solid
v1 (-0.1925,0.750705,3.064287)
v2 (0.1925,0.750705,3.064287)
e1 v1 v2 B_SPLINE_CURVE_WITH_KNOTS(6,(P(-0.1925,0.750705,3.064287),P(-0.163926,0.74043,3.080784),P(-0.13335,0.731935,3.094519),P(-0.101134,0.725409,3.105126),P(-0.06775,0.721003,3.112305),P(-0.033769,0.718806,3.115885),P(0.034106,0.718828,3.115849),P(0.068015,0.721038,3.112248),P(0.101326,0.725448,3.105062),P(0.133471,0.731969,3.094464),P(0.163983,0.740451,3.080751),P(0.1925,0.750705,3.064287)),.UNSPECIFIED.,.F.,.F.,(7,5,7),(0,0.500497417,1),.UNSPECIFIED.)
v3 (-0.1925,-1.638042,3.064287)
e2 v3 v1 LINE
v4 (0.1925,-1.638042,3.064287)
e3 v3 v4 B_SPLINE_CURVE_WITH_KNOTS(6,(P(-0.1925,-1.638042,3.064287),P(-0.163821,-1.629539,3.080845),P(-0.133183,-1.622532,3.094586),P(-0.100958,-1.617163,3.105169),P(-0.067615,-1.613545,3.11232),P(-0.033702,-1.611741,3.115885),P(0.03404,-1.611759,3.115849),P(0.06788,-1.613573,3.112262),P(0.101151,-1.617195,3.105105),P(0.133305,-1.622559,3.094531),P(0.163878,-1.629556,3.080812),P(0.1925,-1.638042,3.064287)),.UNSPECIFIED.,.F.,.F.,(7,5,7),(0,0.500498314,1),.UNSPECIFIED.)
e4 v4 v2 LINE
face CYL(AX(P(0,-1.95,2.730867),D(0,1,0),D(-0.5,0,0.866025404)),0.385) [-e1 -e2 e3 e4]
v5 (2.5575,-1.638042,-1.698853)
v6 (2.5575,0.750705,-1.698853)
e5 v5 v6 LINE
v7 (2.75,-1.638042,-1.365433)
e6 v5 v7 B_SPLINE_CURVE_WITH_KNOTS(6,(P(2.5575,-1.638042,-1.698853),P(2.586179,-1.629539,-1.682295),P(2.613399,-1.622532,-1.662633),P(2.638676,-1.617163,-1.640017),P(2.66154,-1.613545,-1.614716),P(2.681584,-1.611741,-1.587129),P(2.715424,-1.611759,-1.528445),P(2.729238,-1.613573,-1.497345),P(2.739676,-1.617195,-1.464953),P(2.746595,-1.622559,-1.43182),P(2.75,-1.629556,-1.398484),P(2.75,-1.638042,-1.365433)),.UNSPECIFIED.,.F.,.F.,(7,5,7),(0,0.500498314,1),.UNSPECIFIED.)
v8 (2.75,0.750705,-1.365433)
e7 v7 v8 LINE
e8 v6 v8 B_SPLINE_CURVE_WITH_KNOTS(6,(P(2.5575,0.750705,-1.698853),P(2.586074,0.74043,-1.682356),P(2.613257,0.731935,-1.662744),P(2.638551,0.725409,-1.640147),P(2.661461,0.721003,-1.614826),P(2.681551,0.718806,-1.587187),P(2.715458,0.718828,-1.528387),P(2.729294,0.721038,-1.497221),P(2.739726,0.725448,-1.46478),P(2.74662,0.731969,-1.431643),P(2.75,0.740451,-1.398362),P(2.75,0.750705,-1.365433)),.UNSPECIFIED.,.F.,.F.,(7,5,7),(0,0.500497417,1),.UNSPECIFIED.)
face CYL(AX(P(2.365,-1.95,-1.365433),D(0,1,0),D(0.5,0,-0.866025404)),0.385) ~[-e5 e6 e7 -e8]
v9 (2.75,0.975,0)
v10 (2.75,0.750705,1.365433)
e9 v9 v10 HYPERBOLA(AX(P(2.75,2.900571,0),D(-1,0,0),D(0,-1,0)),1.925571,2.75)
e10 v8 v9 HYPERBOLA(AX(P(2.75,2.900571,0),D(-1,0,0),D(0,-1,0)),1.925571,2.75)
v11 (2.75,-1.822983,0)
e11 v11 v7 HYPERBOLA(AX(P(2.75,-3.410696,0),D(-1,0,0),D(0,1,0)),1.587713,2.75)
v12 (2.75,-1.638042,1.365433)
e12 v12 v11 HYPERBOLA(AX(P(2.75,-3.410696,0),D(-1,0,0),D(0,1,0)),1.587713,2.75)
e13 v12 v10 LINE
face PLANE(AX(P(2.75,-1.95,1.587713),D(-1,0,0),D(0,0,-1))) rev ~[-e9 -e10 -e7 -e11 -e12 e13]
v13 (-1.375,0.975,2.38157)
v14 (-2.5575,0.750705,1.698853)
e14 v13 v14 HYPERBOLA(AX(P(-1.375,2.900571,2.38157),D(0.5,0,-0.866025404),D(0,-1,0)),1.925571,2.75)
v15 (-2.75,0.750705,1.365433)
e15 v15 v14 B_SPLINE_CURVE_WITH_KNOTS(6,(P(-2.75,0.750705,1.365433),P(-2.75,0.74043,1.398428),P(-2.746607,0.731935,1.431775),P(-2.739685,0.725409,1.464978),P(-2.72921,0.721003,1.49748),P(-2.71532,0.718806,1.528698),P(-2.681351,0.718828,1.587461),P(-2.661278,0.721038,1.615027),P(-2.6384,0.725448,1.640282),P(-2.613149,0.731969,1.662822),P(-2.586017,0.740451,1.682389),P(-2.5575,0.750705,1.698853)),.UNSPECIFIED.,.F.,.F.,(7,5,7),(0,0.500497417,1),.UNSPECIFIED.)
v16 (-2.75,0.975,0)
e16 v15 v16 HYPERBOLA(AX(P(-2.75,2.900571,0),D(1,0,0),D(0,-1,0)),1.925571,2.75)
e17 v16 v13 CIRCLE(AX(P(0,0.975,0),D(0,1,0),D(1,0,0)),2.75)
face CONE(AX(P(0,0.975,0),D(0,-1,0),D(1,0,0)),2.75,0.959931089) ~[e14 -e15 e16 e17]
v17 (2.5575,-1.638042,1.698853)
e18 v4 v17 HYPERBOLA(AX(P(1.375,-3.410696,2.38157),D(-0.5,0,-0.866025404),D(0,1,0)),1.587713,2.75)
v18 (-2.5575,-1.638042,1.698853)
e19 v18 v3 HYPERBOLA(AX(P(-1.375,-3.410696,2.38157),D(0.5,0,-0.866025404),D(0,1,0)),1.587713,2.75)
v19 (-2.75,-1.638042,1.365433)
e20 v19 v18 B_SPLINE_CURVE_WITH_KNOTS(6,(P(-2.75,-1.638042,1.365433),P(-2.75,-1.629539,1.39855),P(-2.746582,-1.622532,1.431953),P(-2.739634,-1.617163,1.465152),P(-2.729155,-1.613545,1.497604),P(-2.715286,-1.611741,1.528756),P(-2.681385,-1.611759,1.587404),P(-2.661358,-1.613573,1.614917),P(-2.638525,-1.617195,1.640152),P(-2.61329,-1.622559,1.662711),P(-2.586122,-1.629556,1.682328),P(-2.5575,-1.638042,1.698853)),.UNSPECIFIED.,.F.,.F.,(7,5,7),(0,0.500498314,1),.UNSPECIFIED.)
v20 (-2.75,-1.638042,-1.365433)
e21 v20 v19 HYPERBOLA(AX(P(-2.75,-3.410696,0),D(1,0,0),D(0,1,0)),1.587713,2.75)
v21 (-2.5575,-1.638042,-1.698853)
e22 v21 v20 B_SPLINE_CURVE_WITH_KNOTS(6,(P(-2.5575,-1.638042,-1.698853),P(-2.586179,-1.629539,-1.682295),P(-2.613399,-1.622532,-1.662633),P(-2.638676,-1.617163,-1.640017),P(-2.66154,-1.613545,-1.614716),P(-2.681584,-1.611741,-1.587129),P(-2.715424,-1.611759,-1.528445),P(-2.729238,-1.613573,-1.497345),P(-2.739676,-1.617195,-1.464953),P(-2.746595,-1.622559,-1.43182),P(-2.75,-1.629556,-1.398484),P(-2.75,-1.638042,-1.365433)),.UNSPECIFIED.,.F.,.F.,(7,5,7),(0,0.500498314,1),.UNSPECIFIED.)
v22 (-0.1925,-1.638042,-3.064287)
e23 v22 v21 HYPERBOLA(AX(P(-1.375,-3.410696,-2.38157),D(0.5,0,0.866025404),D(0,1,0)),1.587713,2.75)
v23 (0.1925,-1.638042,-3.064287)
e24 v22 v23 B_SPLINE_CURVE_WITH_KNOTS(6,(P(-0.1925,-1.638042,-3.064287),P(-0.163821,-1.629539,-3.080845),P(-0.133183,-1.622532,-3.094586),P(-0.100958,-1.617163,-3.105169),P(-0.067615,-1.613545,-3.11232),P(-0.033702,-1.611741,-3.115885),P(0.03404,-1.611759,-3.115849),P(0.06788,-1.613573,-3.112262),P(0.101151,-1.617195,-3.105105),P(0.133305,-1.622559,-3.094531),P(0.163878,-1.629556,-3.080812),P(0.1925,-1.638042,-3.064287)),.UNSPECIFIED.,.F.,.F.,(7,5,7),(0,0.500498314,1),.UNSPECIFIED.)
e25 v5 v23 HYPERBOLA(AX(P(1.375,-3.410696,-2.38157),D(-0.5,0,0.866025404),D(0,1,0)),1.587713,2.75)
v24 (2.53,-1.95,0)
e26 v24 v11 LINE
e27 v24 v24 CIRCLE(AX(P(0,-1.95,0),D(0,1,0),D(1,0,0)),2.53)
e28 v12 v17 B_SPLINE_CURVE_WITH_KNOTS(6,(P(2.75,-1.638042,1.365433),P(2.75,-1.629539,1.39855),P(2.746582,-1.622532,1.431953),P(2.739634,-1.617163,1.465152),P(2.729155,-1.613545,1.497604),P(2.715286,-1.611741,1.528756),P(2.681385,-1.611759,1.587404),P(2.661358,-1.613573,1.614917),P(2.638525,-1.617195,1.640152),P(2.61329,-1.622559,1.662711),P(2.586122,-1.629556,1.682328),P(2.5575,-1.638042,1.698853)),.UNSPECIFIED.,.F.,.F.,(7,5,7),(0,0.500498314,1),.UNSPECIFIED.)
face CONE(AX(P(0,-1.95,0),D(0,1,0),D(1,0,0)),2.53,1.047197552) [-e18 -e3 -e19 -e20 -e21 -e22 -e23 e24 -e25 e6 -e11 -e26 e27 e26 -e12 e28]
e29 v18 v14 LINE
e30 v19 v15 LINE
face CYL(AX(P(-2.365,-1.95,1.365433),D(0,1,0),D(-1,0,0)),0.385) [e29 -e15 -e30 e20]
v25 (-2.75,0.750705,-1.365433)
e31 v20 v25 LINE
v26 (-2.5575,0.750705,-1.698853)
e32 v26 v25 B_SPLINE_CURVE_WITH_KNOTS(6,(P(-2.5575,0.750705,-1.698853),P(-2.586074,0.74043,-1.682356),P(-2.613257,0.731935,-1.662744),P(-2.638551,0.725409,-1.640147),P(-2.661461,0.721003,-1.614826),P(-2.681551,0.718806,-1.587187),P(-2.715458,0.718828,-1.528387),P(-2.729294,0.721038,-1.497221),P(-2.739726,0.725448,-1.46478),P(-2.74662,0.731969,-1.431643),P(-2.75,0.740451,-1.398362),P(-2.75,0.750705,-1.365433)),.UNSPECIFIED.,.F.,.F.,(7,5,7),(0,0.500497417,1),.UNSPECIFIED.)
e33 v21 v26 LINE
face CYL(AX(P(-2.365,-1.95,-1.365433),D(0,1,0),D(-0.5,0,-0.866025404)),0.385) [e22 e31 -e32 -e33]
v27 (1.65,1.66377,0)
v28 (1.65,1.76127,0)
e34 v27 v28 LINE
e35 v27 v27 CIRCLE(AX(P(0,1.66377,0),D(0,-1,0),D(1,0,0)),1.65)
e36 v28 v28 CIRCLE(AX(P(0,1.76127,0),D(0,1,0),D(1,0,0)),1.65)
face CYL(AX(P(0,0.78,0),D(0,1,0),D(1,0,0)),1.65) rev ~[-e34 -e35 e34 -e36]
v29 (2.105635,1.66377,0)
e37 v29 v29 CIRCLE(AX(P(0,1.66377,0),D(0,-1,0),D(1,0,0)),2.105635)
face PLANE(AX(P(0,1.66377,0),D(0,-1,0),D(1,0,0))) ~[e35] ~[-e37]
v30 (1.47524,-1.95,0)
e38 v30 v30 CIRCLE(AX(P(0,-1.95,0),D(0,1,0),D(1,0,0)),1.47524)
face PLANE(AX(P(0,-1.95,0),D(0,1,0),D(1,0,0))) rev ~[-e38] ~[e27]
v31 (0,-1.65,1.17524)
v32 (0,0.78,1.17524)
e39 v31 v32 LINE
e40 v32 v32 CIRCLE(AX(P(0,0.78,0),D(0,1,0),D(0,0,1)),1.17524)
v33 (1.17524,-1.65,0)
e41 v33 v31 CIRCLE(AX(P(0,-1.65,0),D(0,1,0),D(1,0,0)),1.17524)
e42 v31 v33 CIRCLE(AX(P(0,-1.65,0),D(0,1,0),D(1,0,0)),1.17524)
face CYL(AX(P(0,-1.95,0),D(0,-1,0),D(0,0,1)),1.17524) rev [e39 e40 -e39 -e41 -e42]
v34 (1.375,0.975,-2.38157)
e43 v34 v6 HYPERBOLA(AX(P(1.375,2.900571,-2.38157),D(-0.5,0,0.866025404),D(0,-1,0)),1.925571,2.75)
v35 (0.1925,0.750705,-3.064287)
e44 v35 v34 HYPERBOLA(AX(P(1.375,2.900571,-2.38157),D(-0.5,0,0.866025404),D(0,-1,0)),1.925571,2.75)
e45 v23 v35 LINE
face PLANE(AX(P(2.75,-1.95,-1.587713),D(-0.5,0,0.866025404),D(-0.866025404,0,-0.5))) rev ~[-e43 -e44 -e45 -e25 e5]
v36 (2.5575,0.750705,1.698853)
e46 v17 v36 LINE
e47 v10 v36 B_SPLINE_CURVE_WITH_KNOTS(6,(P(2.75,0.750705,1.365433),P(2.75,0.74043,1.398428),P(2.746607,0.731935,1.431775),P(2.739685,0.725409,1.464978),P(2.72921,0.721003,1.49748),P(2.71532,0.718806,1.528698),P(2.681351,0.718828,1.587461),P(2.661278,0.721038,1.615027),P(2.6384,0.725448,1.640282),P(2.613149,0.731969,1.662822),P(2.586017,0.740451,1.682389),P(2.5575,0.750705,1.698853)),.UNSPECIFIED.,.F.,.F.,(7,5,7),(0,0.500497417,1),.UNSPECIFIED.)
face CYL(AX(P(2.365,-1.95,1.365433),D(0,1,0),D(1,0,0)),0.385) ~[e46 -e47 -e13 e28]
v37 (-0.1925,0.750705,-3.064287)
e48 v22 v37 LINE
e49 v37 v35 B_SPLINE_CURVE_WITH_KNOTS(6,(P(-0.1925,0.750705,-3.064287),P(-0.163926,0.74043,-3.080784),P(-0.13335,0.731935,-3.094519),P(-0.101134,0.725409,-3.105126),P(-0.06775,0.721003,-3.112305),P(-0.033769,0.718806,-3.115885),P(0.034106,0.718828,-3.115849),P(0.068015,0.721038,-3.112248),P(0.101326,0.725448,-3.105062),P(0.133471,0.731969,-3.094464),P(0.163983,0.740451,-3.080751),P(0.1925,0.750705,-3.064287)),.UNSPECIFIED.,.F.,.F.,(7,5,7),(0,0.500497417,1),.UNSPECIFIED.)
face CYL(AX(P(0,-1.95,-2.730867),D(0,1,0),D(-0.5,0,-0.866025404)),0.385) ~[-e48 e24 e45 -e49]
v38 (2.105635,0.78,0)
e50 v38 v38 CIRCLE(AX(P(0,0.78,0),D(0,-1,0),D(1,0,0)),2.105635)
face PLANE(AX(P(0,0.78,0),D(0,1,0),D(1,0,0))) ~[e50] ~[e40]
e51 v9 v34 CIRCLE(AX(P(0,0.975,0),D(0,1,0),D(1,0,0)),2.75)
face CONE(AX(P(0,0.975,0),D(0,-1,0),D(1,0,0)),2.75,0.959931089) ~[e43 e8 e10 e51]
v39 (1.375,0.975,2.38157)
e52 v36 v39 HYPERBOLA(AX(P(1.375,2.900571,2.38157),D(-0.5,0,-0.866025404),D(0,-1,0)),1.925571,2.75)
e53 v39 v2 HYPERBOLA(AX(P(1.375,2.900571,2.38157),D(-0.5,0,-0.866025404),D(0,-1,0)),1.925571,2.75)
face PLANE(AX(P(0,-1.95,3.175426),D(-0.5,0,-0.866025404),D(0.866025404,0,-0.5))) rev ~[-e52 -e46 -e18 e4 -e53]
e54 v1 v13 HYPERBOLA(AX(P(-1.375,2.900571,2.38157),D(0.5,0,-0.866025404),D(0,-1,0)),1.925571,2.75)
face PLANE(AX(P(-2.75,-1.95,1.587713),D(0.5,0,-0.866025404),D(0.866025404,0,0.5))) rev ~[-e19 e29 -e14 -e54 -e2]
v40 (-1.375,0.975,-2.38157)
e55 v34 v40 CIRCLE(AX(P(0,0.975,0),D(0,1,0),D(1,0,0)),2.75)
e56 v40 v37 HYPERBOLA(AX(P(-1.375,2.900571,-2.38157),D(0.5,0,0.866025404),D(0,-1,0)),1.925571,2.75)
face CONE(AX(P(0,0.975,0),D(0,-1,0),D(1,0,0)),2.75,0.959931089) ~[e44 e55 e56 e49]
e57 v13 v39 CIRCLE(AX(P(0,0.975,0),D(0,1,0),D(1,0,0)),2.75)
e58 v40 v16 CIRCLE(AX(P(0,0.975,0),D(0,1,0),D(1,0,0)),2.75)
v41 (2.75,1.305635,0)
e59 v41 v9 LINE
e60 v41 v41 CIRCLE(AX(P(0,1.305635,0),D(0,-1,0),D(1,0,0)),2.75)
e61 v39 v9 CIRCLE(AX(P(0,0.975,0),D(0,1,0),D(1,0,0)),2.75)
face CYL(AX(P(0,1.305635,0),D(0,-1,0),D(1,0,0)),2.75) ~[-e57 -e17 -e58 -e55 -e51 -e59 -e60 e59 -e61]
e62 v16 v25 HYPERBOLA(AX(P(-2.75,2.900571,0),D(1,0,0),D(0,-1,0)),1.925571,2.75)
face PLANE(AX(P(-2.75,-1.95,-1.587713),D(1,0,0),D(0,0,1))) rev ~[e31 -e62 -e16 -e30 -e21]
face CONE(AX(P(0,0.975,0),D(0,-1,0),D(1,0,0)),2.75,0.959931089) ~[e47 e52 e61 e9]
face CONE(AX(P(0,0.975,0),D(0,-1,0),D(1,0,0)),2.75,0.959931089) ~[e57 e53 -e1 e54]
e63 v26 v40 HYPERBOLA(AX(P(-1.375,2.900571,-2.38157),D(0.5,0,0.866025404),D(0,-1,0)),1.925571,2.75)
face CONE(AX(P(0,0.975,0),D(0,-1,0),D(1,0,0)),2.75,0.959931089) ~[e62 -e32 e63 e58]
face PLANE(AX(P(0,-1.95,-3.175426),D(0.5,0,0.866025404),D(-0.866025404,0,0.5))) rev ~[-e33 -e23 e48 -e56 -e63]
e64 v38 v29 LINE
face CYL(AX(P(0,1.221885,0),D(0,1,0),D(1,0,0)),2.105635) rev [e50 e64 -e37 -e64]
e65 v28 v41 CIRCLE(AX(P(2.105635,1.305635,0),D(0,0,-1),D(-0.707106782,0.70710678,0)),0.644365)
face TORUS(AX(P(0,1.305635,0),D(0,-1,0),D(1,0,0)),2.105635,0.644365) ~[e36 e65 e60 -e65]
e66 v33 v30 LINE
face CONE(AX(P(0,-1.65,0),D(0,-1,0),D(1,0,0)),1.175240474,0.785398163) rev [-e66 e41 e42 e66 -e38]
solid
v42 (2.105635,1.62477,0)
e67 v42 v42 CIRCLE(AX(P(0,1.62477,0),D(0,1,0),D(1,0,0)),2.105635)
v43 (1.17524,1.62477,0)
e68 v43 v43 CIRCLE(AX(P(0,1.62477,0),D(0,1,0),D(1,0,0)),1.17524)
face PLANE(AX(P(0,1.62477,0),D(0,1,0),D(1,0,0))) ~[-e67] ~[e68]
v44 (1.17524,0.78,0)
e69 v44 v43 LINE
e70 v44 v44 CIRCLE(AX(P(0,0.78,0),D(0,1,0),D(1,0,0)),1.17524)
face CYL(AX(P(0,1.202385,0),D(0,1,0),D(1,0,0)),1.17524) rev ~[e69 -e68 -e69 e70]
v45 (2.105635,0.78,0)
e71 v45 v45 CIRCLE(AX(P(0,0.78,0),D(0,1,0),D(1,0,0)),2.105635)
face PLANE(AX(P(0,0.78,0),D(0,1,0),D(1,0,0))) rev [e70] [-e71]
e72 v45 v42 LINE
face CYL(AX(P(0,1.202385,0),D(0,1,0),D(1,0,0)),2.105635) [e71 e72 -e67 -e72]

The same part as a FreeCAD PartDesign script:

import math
import FreeCAD as App
import Part
import Sketcher
from FreeCAD import Vector
Q = App.Units.Quantity


def edges_at(feature, points):
    """Names of the edges that pass closest to the given points."""
    edges = feature.Shape.Edges
    near = lambda p: min(range(len(edges)), key=lambda i: edges[i].distToShape(Part.Vertex(*p))[0])
    return sorted({f"Edge{near(p) + 1}" for p in points})

doc = App.newDocument("Part")
body = doc.addObject("PartDesign::Body", "Body")

sketch1 = body.newObject("Sketcher::SketchObject", "Sketch")
sketch1.AttachmentSupport = (doc.getObject("XZ_Plane"), [""])
sketch1.MapMode = "FlatFace"
sketch1.addGeometry([
    Part.LineSegment(Vector(0, -3.2, 0), Vector(-2.8, -1.6, 0)),
    Part.LineSegment(Vector(-2.8, -1.6, 0), Vector(-2.8, 1.6, 0)),
    Part.LineSegment(Vector(-2.8, 1.6, 0), Vector(0, 3.2, 0)),
    Part.LineSegment(Vector(0, 3.2, 0), Vector(2.8, 1.6, 0)),
    Part.LineSegment(Vector(2.8, 1.6, 0), Vector(2.8, -1.6, 0)),
    Part.LineSegment(Vector(2.8, -1.6, 0), Vector(0, -3.2, 0)),
    Part.Circle(Vector(0, 0, 0), Vector(0, 0, 1), 1.2),
], False)
sketch1.addConstraint([
    Sketcher.Constraint("Coincident", 0, 2, 1, 1),
    Sketcher.Constraint("Coincident", 1, 2, 2, 1),
    Sketcher.Constraint("Coincident", 2, 2, 3, 1),
    Sketcher.Constraint("Coincident", 3, 2, 4, 1),
    Sketcher.Constraint("Coincident", 4, 2, 5, 1),
    Sketcher.Constraint("Coincident", 5, 2, 0, 1),
    Sketcher.Constraint("Vertical", 1),
    Sketcher.Constraint("Vertical", 4),
    Sketcher.Constraint("Coincident", 6, 3, -1, 1),
    Sketcher.Constraint("Symmetric", 0, 2, 3, 2, -1, 1),
    Sketcher.Constraint("Symmetric", 2, 2, 5, 2, -1, 1),
    Sketcher.Constraint("PointOnObject", 2, 2, -2),
    Sketcher.Constraint("Parallel", 2, 5),
    Sketcher.Constraint("Horizontal", 1, 2, 3, 2),
    Sketcher.Constraint("Angle", 0, Q("150 deg")),
    Sketcher.Constraint("DistanceX", 1, 2, 3, 2, Q("5.5 mm")),
    Sketcher.Constraint("Diameter", 6, Q("2.350481 mm")),
    Sketcher.Constraint("DistanceY", 1, 1, 1, 2, Q("3.175426 mm")),
])
pad1 = body.newObject("PartDesign::Pad", "Pad")
pad1.Profile = sketch1
pad1.Type = "TwoLengths"
pad1.Length = 1.95
pad1.Length2 = 1.95
pad1.Reversed = True
doc.recompute()

fillet = body.newObject("PartDesign::Fillet", "Fillet")
fillet.Base = (pad1, edges_at(pad1, [
    (2.75, 0, -1.588),
    (2.75, 0, 1.588),
    (0, 0, 3.175),
    (-2.75, 0, 1.588),
    (-2.75, 0, -1.588),
    (0, 0, -3.175),
]))
fillet.Radius = 0.385

sketch2 = body.newObject("Sketcher::SketchObject", "Sketch001")
sketch2.AttachmentSupport = (doc.getObject("YZ_Plane"), [""])
sketch2.MapMode = "FlatFace"
sketch2.addGeometry([
    Part.LineSegment(Vector(2.95, -3.18, 0), Vector(2.95, -1.18, 0)),
    Part.LineSegment(Vector(2.95, -1.18, 0), Vector(0.78, -1.18, 0)),
    Part.LineSegment(Vector(0.78, -1.18, 0), Vector(0.78, -1.65, 0)),
    Part.LineSegment(Vector(0.78, -1.65, 0), Vector(1.76, -1.65, 0)),
    Part.ArcOfCircle(Part.Circle(Vector(1.31, -2.11, 0), Vector(0, 0, 1), 0.64), math.radians(-90), math.radians(45)),
    Part.LineSegment(Vector(1.31, -2.75, 0), Vector(0.97, -2.75, 0)),
    Part.LineSegment(Vector(0.97, -2.75, 0), Vector(0.68, -3.18, 0)),
    Part.LineSegment(Vector(0.68, -3.18, 0), Vector(2.95, -3.18, 0)),
    Part.LineSegment(Vector(-1.58, -3.18, 0), Vector(-1.95, -2.53, 0)),
    Part.LineSegment(Vector(-1.95, -2.53, 0), Vector(-1.95, -3.18, 0)),
    Part.LineSegment(Vector(-1.95, -3.18, 0), Vector(-1.58, -3.18, 0)),
    Part.LineSegment(Vector(-1.65, -1.18, 0), Vector(-1.95, -1.18, 0)),
    Part.LineSegment(Vector(-1.95, -1.18, 0), Vector(-1.95, -1.48, 0)),
    Part.LineSegment(Vector(-1.95, -1.48, 0), Vector(-1.65, -1.18, 0)),
], False)
sketch2.addConstraint([
    Sketcher.Constraint("Coincident", 0, 2, 1, 1),
    Sketcher.Constraint("Coincident", 1, 2, 2, 1),
    Sketcher.Constraint("Coincident", 2, 2, 3, 1),
    Sketcher.Constraint("Coincident", 3, 2, 4, 2),
    Sketcher.Constraint("Tangent", 4, 1, 5, 1),
    Sketcher.Constraint("Coincident", 5, 2, 6, 1),
    Sketcher.Constraint("Coincident", 6, 2, 7, 1),
    Sketcher.Constraint("Coincident", 7, 2, 0, 1),
    Sketcher.Constraint("Coincident", 8, 2, 9, 1),
    Sketcher.Constraint("Coincident", 9, 2, 10, 1),
    Sketcher.Constraint("Coincident", 10, 2, 8, 1),
    Sketcher.Constraint("Coincident", 11, 2, 12, 1),
    Sketcher.Constraint("Coincident", 12, 2, 13, 1),
    Sketcher.Constraint("Coincident", 13, 2, 11, 1),
    Sketcher.Constraint("Vertical", 0),
    Sketcher.Constraint("Horizontal", 1),
    Sketcher.Constraint("Vertical", 2),
    Sketcher.Constraint("Horizontal", 3),
    Sketcher.Constraint("Horizontal", 5),
    Sketcher.Constraint("Horizontal", 7),
    Sketcher.Constraint("Vertical", 9),
    Sketcher.Constraint("Horizontal", 10),
    Sketcher.Constraint("Horizontal", 11),
    Sketcher.Constraint("Vertical", 12),
    Sketcher.Constraint("Horizontal", 7, 2, 9, 2),
    Sketcher.Constraint("Horizontal", 1, 2, 11, 2),
    Sketcher.Constraint("Vertical", 9, 2, 11, 2),
    Sketcher.Constraint("Equal", 11, 12),
    Sketcher.Constraint("Angle", 6, Q("-125 deg")),
    Sketcher.Constraint("Angle", 8, Q("120 deg")),
    Sketcher.Constraint("DistanceX", 11, 2, 11, 1, Q("0.3 mm")),
    Sketcher.Constraint("DistanceX", 1, 2, 1, 1, Q("2.17 mm")),
    Sketcher.Constraint("DistanceY", 4, 1, 3, 2, Q("1.1 mm")),
    Sketcher.Constraint("DistanceX", -1, 1, 0, 2, Q("2.95 mm")),
    Sketcher.Constraint("DistanceY", 2, 2, -1, 1, Q("1.65 mm")),
    Sketcher.Constraint("DistanceX", 8, 2, -1, 1, Q("1.95 mm")),
    Sketcher.Constraint("DistanceY", 8, 2, -1, 1, Q("2.53 mm")),
    Sketcher.Constraint("DistanceX", -1, 1, 5, 2, Q("0.975 mm")),
    Sketcher.Constraint("Radius", 4, Q("0.644365 mm")),
    Sketcher.Constraint("DistanceX", 3, 1, 3, 2, Q("0.98127 mm")),
    Sketcher.Constraint("DistanceY", 2, 2, 2, 1, Q("0.47476 mm")),
    Sketcher.Constraint("Distance", 6, Q("0.51935 mm")),
])
groove = body.newObject("PartDesign::Groove", "Groove")
groove.Profile = sketch2
groove.ReferenceAxis = (sketch2, ["H_Axis"])
groove.Angle = 360

sketch3 = body.newObject("Sketcher::SketchObject", "Sketch002")
sketch3.AttachmentSupport = (doc.getObject("YZ_Plane"), [""])
sketch3.MapMode = "FlatFace"
sketch3.addGeometry([
    Part.LineSegment(Vector(1.66, -1.65, 0), Vector(0.78, -1.65, 0)),
    Part.LineSegment(Vector(0.78, -1.65, 0), Vector(0.78, -2.11, 0)),
    Part.LineSegment(Vector(0.78, -2.11, 0), Vector(1.66, -2.11, 0)),
    Part.LineSegment(Vector(1.66, -2.11, 0), Vector(1.66, -1.65, 0)),
], False)
sketch3.addConstraint([
    Sketcher.Constraint("Coincident", 0, 2, 1, 1),
    Sketcher.Constraint("Coincident", 1, 2, 2, 1),
    Sketcher.Constraint("Coincident", 2, 2, 3, 1),
    Sketcher.Constraint("Coincident", 3, 2, 0, 1),
    Sketcher.Constraint("Horizontal", 0),
    Sketcher.Constraint("Vertical", 1),
    Sketcher.Constraint("Horizontal", 2),
    Sketcher.Constraint("Vertical", 3),
    Sketcher.Constraint("DistanceX", -1, 1, 0, 2, Q("0.78 mm")),
    Sketcher.Constraint("DistanceY", 0, 2, -1, 1, Q("1.65 mm")),
    Sketcher.Constraint("DistanceX", 0, 2, 0, 1, Q("0.88377 mm")),
    Sketcher.Constraint("DistanceY", 1, 2, 1, 1, Q("0.455635 mm")),
])
groove2 = body.newObject("PartDesign::Groove", "Groove001")
groove2.Profile = sketch3
groove2.ReferenceAxis = (sketch3, ["H_Axis"])
groove2.Angle = 360
body2 = doc.addObject("PartDesign::Body", "Body001")

sketch4 = body2.newObject("Sketcher::SketchObject", "Sketch003")
sketch4.AttachmentSupport = (doc.getObject("YZ_Plane001"), [""])
sketch4.MapMode = "FlatFace"
sketch4.addGeometry([
    Part.LineSegment(Vector(1.6, -1.2, 0), Vector(0.8, -1.2, 0)),
    Part.LineSegment(Vector(0.8, -1.2, 0), Vector(0.8, -2.1, 0)),
    Part.LineSegment(Vector(0.8, -2.1, 0), Vector(1.6, -2.1, 0)),
    Part.LineSegment(Vector(1.6, -2.1, 0), Vector(1.6, -1.2, 0)),
], False)
sketch4.addConstraint([
    Sketcher.Constraint("Coincident", 0, 2, 1, 1),
    Sketcher.Constraint("Coincident", 1, 2, 2, 1),
    Sketcher.Constraint("Coincident", 2, 2, 3, 1),
    Sketcher.Constraint("Coincident", 3, 2, 0, 1),
    Sketcher.Constraint("Horizontal", 0),
    Sketcher.Constraint("Vertical", 1),
    Sketcher.Constraint("Horizontal", 2),
    Sketcher.Constraint("Vertical", 3),
    Sketcher.Constraint("DistanceX", -1, 1, 0, 2, Q("0.78 mm")),
    Sketcher.Constraint("DistanceX", 0, 2, 0, 1, Q("0.84477 mm")),
    Sketcher.Constraint("DistanceY", 1, 2, 1, 1, Q("0.930394 mm")),
    Sketcher.Constraint("DistanceY", 0, 2, -1, 1, Q("1.17524 mm")),
])
revolution = body2.newObject("PartDesign::Revolution", "Revolution")
revolution.Profile = sketch4
revolution.ReferenceAxis = (sketch4, ["H_Axis"])
revolution.Angle = 360

doc.recompute()
